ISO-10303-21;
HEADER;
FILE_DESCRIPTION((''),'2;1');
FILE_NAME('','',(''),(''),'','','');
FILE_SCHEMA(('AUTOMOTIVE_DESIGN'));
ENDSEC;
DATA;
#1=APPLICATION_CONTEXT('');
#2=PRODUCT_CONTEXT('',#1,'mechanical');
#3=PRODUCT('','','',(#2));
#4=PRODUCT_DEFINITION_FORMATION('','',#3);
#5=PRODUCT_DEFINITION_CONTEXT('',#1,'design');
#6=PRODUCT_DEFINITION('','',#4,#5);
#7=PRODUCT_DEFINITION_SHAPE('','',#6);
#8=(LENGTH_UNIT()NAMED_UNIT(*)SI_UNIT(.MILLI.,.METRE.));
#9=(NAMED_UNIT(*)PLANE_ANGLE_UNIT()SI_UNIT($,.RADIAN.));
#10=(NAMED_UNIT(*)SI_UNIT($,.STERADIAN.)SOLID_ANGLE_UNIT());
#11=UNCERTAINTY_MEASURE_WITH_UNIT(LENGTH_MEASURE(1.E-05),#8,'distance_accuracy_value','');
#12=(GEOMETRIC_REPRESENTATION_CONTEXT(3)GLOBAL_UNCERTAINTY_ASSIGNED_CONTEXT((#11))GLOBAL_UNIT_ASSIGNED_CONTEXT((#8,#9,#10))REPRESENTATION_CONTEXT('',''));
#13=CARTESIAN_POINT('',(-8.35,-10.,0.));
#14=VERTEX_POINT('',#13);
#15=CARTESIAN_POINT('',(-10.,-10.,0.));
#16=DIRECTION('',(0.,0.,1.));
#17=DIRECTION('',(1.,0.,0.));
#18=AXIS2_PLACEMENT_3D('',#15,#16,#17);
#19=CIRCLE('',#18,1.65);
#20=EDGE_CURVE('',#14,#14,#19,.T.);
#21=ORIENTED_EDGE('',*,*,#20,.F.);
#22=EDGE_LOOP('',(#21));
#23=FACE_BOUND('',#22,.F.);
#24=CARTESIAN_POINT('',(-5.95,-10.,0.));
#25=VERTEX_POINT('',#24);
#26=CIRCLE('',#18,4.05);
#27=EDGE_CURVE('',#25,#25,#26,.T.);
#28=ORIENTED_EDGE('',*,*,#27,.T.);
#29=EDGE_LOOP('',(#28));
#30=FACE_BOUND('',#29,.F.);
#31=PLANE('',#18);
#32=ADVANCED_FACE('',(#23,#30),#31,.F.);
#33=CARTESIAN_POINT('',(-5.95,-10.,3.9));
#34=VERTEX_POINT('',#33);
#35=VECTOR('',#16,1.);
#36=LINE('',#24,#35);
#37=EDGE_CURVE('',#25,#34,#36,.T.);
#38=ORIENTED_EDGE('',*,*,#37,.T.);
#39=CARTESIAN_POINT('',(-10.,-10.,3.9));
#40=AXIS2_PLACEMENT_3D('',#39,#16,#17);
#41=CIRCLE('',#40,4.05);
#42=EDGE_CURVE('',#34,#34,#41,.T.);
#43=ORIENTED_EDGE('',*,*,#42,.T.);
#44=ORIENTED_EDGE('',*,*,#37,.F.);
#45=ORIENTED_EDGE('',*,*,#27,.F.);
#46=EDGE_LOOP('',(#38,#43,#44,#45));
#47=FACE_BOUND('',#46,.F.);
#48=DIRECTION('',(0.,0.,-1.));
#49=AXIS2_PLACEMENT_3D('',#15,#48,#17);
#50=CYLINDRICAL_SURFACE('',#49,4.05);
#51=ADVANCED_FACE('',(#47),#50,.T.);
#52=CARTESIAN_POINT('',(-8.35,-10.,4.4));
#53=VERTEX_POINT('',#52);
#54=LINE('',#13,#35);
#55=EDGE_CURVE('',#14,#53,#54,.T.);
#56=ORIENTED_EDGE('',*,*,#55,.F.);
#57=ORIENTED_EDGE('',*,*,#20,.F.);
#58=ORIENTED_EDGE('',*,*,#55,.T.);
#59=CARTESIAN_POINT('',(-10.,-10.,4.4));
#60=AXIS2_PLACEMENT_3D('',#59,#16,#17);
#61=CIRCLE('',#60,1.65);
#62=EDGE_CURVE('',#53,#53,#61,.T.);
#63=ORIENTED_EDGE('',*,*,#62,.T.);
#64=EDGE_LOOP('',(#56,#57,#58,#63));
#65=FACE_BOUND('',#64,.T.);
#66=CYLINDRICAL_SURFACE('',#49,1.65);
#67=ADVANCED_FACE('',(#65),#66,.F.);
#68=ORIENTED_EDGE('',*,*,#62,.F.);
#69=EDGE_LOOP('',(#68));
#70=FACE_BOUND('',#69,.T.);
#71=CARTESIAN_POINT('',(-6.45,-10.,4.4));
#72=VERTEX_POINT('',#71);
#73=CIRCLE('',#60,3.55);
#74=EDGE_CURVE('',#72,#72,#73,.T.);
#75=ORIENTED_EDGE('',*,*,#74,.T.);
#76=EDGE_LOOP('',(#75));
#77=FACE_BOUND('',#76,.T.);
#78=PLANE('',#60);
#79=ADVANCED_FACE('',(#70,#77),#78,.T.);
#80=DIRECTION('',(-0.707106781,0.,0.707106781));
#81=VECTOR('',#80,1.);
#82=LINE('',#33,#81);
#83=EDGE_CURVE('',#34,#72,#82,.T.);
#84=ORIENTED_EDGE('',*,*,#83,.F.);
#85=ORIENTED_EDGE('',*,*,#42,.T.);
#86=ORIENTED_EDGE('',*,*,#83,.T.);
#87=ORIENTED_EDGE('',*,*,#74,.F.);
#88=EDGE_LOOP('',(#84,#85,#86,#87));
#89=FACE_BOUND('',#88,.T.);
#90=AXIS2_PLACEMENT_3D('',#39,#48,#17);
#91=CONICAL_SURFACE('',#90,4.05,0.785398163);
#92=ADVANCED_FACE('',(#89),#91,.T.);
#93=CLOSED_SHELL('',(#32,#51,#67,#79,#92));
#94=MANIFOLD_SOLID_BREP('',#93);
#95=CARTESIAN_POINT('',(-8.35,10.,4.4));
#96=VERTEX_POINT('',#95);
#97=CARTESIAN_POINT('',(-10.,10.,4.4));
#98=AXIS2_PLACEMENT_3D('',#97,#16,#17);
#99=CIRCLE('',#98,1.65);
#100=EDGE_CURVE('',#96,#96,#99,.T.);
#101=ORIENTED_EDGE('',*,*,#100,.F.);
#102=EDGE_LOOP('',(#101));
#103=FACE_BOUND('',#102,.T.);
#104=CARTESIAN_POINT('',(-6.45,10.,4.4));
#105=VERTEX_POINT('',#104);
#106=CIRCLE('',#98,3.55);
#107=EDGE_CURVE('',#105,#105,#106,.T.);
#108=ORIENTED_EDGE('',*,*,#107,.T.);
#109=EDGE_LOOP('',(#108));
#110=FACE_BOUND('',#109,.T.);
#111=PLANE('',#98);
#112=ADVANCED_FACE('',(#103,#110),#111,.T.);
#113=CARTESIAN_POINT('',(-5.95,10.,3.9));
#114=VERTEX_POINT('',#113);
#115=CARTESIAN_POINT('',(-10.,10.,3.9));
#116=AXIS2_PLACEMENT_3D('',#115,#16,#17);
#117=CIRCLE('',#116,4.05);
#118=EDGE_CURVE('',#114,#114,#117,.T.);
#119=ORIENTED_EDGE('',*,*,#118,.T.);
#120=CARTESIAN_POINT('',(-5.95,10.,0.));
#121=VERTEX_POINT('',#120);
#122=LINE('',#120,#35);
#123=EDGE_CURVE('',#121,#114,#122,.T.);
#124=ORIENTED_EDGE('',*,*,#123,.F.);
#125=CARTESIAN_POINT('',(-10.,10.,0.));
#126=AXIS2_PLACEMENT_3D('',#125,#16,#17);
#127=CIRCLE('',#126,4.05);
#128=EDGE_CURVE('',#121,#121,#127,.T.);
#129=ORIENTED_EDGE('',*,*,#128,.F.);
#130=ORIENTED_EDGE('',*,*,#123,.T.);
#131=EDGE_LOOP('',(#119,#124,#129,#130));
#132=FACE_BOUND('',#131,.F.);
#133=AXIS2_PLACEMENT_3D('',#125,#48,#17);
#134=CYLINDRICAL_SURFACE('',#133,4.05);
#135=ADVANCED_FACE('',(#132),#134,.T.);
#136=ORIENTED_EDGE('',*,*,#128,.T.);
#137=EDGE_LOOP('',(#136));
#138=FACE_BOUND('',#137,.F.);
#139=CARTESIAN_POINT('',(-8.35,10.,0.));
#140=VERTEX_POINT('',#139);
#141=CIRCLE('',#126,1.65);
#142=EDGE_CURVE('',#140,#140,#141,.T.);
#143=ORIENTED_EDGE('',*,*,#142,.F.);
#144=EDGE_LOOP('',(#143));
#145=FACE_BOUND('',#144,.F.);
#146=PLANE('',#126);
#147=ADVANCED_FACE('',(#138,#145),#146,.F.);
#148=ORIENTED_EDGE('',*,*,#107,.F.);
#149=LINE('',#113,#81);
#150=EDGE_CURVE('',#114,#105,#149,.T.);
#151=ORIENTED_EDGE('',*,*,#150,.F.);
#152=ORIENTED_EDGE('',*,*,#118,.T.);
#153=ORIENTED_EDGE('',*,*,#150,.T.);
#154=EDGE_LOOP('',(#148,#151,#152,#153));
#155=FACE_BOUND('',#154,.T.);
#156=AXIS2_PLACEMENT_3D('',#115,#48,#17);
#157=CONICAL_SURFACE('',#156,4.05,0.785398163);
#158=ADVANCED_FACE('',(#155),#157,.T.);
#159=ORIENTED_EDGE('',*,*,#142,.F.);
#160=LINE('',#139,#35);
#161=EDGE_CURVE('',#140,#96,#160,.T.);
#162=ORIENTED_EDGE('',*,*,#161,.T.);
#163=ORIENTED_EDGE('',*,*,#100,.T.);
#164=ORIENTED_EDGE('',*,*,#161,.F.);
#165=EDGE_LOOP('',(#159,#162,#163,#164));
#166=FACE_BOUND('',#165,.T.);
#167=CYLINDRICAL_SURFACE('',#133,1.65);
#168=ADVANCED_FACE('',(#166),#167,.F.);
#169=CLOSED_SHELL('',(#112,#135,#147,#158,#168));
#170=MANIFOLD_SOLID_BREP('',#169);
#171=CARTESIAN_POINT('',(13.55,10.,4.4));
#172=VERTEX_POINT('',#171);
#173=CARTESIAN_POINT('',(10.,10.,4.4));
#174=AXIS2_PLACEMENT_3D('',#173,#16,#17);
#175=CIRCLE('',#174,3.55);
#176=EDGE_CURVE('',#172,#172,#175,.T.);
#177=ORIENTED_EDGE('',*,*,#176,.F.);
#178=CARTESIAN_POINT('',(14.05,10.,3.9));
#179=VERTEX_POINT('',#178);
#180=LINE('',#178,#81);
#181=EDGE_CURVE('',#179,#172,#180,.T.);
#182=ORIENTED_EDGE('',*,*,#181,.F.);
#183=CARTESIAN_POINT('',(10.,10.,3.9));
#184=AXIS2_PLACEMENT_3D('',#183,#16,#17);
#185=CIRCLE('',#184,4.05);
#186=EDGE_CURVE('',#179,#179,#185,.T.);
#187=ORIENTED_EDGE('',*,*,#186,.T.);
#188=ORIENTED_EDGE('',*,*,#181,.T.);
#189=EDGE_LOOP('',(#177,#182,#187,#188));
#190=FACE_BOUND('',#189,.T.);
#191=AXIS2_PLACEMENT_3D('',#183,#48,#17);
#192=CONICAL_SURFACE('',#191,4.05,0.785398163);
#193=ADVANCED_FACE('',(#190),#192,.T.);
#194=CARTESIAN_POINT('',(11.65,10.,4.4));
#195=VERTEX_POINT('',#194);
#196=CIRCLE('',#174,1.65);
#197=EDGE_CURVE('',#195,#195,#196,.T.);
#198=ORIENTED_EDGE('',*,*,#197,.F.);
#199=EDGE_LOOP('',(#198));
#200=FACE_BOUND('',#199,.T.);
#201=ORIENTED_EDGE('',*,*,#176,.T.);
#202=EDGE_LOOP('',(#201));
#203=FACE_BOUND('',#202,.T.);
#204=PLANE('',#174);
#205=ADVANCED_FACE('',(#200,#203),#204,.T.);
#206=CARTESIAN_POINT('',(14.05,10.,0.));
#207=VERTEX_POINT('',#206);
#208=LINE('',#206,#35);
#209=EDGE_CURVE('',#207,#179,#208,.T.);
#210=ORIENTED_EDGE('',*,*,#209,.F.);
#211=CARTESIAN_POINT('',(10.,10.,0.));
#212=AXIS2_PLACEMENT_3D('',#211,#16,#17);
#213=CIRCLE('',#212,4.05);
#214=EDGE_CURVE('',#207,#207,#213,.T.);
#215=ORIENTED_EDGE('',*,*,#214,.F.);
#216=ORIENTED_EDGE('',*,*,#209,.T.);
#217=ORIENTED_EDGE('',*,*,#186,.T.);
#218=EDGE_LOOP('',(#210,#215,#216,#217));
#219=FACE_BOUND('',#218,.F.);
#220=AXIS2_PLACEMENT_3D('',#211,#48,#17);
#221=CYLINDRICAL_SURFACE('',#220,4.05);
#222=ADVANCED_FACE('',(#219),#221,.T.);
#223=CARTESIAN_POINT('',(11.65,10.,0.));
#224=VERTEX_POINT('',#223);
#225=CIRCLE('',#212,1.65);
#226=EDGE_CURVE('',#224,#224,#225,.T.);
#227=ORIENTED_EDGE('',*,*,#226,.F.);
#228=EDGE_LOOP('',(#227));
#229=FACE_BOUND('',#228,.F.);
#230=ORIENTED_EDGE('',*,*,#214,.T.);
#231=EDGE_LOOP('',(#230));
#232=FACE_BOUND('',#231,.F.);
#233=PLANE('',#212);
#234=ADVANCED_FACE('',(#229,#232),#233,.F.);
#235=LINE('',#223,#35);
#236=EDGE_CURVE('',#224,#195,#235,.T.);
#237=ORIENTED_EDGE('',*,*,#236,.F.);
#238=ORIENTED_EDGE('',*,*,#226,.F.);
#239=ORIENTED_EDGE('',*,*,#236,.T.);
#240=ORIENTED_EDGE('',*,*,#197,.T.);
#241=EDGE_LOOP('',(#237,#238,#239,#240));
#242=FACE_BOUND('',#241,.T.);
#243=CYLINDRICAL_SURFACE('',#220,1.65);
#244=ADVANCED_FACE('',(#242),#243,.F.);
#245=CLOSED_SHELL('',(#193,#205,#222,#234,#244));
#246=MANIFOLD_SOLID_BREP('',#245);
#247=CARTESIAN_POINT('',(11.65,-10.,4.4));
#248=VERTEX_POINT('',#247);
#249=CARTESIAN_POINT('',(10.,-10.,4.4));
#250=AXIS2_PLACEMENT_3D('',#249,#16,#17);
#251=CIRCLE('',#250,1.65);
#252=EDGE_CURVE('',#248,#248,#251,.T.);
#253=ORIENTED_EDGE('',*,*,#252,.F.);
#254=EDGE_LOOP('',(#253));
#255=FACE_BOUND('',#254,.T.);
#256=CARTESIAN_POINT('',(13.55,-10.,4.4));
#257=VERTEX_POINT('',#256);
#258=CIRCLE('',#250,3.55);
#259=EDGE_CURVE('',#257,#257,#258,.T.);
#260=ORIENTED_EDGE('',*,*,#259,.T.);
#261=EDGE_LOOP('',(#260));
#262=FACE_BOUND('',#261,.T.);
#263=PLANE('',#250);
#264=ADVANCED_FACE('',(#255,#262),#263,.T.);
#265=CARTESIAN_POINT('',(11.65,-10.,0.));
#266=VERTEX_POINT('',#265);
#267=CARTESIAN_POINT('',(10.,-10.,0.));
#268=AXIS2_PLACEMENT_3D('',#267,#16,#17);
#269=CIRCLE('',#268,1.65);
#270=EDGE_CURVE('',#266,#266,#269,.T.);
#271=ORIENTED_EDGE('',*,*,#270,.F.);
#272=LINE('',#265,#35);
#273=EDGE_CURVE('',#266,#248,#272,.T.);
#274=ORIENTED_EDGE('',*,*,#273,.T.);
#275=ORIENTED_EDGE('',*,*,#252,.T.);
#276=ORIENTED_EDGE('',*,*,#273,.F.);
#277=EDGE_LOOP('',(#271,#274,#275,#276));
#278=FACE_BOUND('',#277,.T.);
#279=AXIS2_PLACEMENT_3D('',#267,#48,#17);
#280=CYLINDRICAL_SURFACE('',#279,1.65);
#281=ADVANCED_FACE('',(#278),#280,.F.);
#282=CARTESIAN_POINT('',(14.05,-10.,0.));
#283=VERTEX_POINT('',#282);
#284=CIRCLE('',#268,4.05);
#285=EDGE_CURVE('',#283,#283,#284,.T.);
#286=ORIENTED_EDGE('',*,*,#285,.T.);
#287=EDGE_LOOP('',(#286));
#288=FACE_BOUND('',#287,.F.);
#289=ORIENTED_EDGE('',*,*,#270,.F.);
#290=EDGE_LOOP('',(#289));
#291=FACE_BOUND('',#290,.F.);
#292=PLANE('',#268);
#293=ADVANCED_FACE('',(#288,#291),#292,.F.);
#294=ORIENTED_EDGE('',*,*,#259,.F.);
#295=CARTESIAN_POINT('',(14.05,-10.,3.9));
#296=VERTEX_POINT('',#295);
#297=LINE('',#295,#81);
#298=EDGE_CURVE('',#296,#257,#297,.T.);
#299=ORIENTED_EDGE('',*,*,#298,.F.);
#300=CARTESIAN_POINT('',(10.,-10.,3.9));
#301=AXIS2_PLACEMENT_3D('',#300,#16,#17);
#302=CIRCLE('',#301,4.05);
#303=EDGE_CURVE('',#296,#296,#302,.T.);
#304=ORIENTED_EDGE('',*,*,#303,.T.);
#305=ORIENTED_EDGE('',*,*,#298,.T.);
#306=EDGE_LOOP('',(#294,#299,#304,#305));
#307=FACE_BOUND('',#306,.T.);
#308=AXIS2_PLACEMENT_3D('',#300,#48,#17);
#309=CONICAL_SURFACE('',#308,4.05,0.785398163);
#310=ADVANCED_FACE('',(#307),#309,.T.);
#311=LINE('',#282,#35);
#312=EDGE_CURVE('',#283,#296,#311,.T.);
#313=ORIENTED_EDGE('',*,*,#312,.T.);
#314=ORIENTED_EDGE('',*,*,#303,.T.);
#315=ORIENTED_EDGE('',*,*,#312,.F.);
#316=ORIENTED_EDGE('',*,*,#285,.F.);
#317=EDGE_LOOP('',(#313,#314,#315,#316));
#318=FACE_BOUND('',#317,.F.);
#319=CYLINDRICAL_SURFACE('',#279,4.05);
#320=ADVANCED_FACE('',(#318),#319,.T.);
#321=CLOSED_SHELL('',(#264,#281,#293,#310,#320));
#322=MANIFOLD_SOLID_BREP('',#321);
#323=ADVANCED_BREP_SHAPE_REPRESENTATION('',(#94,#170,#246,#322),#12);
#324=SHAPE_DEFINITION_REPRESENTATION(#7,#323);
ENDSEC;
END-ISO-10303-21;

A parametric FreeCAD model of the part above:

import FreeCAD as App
import Part
import Sketcher


def edges_at(feature, points):
    """Names of the edges that pass closest to the given points."""
    edges = feature.Shape.Edges
    near = lambda p: min(range(len(edges)), key=lambda i: edges[i].distToShape(Part.Vertex(*p))[0])
    return sorted({f"Edge{near(p) + 1}" for p in points})

doc = App.newDocument("Part")
body = doc.addObject("PartDesign::Body", "Body")
body.AllowCompound = True

# Sketch on XY plane
sketch1 = body.newObject("Sketcher::SketchObject", "Sketch")
sketch1.AttachmentSupport = (doc.getObject("XY_Plane"), [""])
sketch1.MapMode = "FlatFace"
sketch1.addGeometry(Part.Circle(App.Vector(-10, 10, 0), App.Vector(0, 0, 1), 4), False)
sketch1.addGeometry(Part.Circle(App.Vector(-10, 10, 0), App.Vector(0, 0, 1), 1.6), False)
sketch1.addGeometry(Part.Circle(App.Vector(10, 10, 0), App.Vector(0, 0, 1), 4), False)
sketch1.addGeometry(Part.Circle(App.Vector(10, 10, 0), App.Vector(0, 0, 1), 1.6), False)
sketch1.addGeometry(Part.Circle(App.Vector(10, -10, 0), App.Vector(0, 0, 1), 4), False)
sketch1.addGeometry(Part.Circle(App.Vector(10, -10, 0), App.Vector(0, 0, 1), 1.6), False)
sketch1.addGeometry(Part.Circle(App.Vector(-10, -10, 0), App.Vector(0, 0, 1), 4), False)
sketch1.addGeometry(Part.Circle(App.Vector(-10, -10, 0), App.Vector(0, 0, 1), 1.6), False)
sketch1.addConstraint(Sketcher.Constraint("Coincident", 1, 3, 0, 3))
sketch1.addConstraint(Sketcher.Constraint("Coincident", 3, 3, 2, 3))
sketch1.addConstraint(Sketcher.Constraint("Coincident", 5, 3, 4, 3))
sketch1.addConstraint(Sketcher.Constraint("Coincident", 7, 3, 6, 3))
sketch1.addConstraint(Sketcher.Constraint("Equal", 0, 2))
sketch1.addConstraint(Sketcher.Constraint("Equal", 1, 3))
sketch1.addConstraint(Sketcher.Constraint("Equal", 2, 4))
sketch1.addConstraint(Sketcher.Constraint("Equal", 3, 5))
sketch1.addConstraint(Sketcher.Constraint("Equal", 4, 6))
sketch1.addConstraint(Sketcher.Constraint("Equal", 5, 7))
sketch1.addConstraint(Sketcher.Constraint("Symmetric", 0, 3, 4, 3, -1, 1))
sketch1.addConstraint(Sketcher.Constraint("Symmetric", 2, 3, 6, 3, -1, 1))
sketch1.addConstraint(Sketcher.Constraint("Symmetric", 0, 3, 2, 3, -2))
sketch1.addConstraint(Sketcher.Constraint("Diameter", 0, 8.1))
sketch1.addConstraint(Sketcher.Constraint("Diameter", 1, 3.3))
sketch1.addConstraint(Sketcher.Constraint("DistanceX", 0, 3, -1, 1, 10.0))
sketch1.addConstraint(Sketcher.Constraint("DistanceY", -1, 1, 0, 3, 10.0))
pad1 = body.newObject("PartDesign::Pad", "Pad")
pad1.Profile = sketch1
pad1.Length = 4.4
doc.recompute()

chamfer = body.newObject("PartDesign::Chamfer", "Chamfer")
chamfer.Base = (pad1, edges_at(pad1, [
    (-14.05, 10, 4.4),
    (5.95, 10, 4.4),
    (5.95, -10, 4.4),
    (-14.05, -10, 4.4),
]))
chamfer.Size = 0.5

doc.recompute()
